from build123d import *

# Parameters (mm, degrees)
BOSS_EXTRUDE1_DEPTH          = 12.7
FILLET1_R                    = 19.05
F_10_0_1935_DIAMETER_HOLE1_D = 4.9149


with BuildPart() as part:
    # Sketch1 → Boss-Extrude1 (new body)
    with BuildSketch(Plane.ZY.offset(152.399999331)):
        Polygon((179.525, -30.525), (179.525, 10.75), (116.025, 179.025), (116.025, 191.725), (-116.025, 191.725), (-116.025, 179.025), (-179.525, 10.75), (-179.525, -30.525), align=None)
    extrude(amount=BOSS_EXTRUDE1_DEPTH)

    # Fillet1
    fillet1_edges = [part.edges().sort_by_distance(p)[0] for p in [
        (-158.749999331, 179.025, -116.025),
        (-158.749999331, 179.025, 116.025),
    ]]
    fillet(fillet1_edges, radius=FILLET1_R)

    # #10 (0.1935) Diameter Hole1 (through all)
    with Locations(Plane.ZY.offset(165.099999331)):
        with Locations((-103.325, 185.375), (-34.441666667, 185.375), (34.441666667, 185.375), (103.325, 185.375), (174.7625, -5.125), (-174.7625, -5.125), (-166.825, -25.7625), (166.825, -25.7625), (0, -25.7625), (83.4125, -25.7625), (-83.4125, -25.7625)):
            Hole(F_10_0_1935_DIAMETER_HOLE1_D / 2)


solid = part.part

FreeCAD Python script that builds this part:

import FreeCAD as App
import Part
import Sketcher
Q = App.Units.Quantity


def edges_at(feature, points):
    """Names of the edges that pass closest to the given points."""
    edges = feature.Shape.Edges
    near = lambda p: min(range(len(edges)), key=lambda i: edges[i].distToShape(Part.Vertex(*p))[0])
    return sorted({f"Edge{near(p) + 1}" for p in points})

doc = App.newDocument("Part")
body = doc.addObject("PartDesign::Body", "Body")

sketch1 = body.newObject("Sketcher::SketchObject", "Sketch")
sketch1.AttachmentSupport = (doc.getObject("YZ_Plane"), [""])
sketch1.MapMode = "FlatFace"
sketch1.AttachmentOffset = App.Placement(App.Vector(0, 0, -6 * 25.4), App.Rotation())
sketch1.addGeometry([
    Part.LineSegment(App.Vector(-31, 180, 0), App.Vector(11, 180, 0)),
    Part.LineSegment(App.Vector(11, 180, 0), App.Vector(179, 116, 0)),
    Part.LineSegment(App.Vector(179, 116, 0), App.Vector(192, 116, 0)),
    Part.LineSegment(App.Vector(192, 116, 0), App.Vector(192, -116, 0)),
    Part.LineSegment(App.Vector(192, -116, 0), App.Vector(179, -116, 0)),
    Part.LineSegment(App.Vector(179, -116, 0), App.Vector(11, -180, 0)),
    Part.LineSegment(App.Vector(11, -180, 0), App.Vector(-31, -180, 0)),
    Part.LineSegment(App.Vector(-31, -180, 0), App.Vector(-31, 180, 0)),
], False)
sketch1.addConstraint([
    Sketcher.Constraint("Coincident", 0, 2, 1, 1),
    Sketcher.Constraint("Coincident", 1, 2, 2, 1),
    Sketcher.Constraint("Coincident", 2, 2, 3, 1),
    Sketcher.Constraint("Coincident", 3, 2, 4, 1),
    Sketcher.Constraint("Coincident", 4, 2, 5, 1),
    Sketcher.Constraint("Coincident", 5, 2, 6, 1),
    Sketcher.Constraint("Coincident", 6, 2, 7, 1),
    Sketcher.Constraint("Coincident", 7, 2, 0, 1),
    Sketcher.Constraint("Horizontal", 0),
    Sketcher.Constraint("Horizontal", 2),
    Sketcher.Constraint("Vertical", 3),
    Sketcher.Constraint("Horizontal", 4),
    Sketcher.Constraint("Horizontal", 6),
    Sketcher.Constraint("Vertical", 7),
    Sketcher.Constraint("Symmetric", 1, 2, 4, 2, -1),
    Sketcher.Constraint("Symmetric", 0, 2, 5, 2, -1),
    Sketcher.Constraint("DistanceX", 2, 1, 2, 2, Q("0.5 in")),
    Sketcher.Constraint("DistanceY", 1, 2, 0, 2, Q("2.5 in")),
    Sketcher.Constraint("DistanceX", 0, 1, 0, 2, Q("1.625 in")),
    Sketcher.Constraint("DistanceX", 6, 2, 4, 2, Q("8.25 in")),
    Sketcher.Constraint("DistanceY", 3, 2, 3, 1, 232.05),
    Sketcher.Constraint("DistanceX", -1, 1, 0, 2, 10.75),
])
pad1 = body.newObject("PartDesign::Pad", "Pad")
pad1.Profile = sketch1
pad1.Length = Q("0.5 in")
pad1.Reversed = True
doc.recompute()

fillet = body.newObject("PartDesign::Fillet", "Fillet")
fillet.Base = (pad1, edges_at(pad1, [(-158.75, 179.025, -116.025), (-158.75, 179.025, 116.025)]))
fillet.Radius = Q("0.75 in")

sketch2 = body.newObject("Sketcher::SketchObject", "Sketch001")
sketch2.AttachmentSupport = (doc.getObject("YZ_Plane"), [""])
sketch2.MapMode = "FlatFace"
sketch2.AttachmentOffset = App.Placement(App.Vector(0, 0, -6.5 * 25.4), App.Rotation())
sketch2.addGeometry([
    Part.Circle(App.Vector(185.4, -103.3, 0), App.Vector(0, 0, 1), 2.5),
    Part.Circle(App.Vector(185.4, -34.4, 0), App.Vector(0, 0, 1), 2.5),
    Part.Circle(App.Vector(185.4, 34.4, 0), App.Vector(0, 0, 1), 2.5),
    Part.Circle(App.Vector(185.4, 103.3, 0), App.Vector(0, 0, 1), 2.5),
    Part.Circle(App.Vector(-5.1, 174.8, 0), App.Vector(0, 0, 1), 2.5),
    Part.Circle(App.Vector(-5.1, -174.8, 0), App.Vector(0, 0, 1), 2.5),
    Part.Circle(App.Vector(-25.8, -166.8, 0), App.Vector(0, 0, 1), 2.5),
    Part.Circle(App.Vector(-25.8, 166.8, 0), App.Vector(0, 0, 1), 2.5),
    Part.Circle(App.Vector(-25.8, 0, 0), App.Vector(0, 0, 1), 2.5),
    Part.Circle(App.Vector(-25.8, 83.4, 0), App.Vector(0, 0, 1), 2.5),
    Part.Circle(App.Vector(-25.8, -83.4, 0), App.Vector(0, 0, 1), 2.5),
], False)
sketch2.addConstraint([
    Sketcher.Constraint("Equal", 0, 1),
    Sketcher.Constraint("Equal", 1, 2),
    Sketcher.Constraint("Equal", 2, 3),
    Sketcher.Constraint("Equal", 3, 4),
    Sketcher.Constraint("Equal", 4, 5),
    Sketcher.Constraint("Equal", 5, 6),
    Sketcher.Constraint("Equal", 6, 7),
    Sketcher.Constraint("Equal", 7, 8),
    Sketcher.Constraint("Equal", 8, 9),
    Sketcher.Constraint("Equal", 9, 10),
    Sketcher.Constraint("Symmetric", 1, 3, 2, 3, -1),
    Sketcher.Constraint("Symmetric", 0, 3, 3, 3, -1),
    Sketcher.Constraint("Symmetric", 4, 3, 5, 3, -1),
    Sketcher.Constraint("Symmetric", 6, 3, 7, 3, -1),
    Sketcher.Constraint("Symmetric", 9, 3, 10, 3, -1),
    Sketcher.Constraint("PointOnObject", 8, 3, -1),
    Sketcher.Constraint("Vertical", 0, 3, 1, 3),
    Sketcher.Constraint("Vertical", 7, 3, 8, 3),
    Sketcher.Constraint("Vertical", 8, 3, 9, 3),
    Sketcher.Constraint("Diameter", 0, Q("0.1935 in")),
    Sketcher.Constraint("DistanceX", 4, 3, 3, 3, Q("7.5 in")),
    Sketcher.Constraint("DistanceY", 6, 3, 0, 3, Q("2.5 in")),
    Sketcher.Constraint("DistanceY", 3, 3, 4, 3, Q("2.8125 in")),
    Sketcher.Constraint("DistanceX", 6, 3, 5, 3, Q("0.8125 in")),
    Sketcher.Constraint("DistanceX", -1, 1, 0, 3, 185.375),
    Sketcher.Constraint("DistanceY", 0, 3, -1, 1, 103.325),
    Sketcher.Constraint("DistanceY", -1, 1, 9, 3, 83.4125),
    Sketcher.Constraint("DistanceY", 1, 3, -1, 1, 34.441667),
])
doc.recompute()
hole = body.newObject("PartDesign::Hole", "Hole")
hole.Profile = sketch2
hole.ThreadType = "None"
hole.Diameter = Q("0.1935 in")
hole.DepthType = "ThroughAll"
hole.Reversed = True

doc.recompute()
